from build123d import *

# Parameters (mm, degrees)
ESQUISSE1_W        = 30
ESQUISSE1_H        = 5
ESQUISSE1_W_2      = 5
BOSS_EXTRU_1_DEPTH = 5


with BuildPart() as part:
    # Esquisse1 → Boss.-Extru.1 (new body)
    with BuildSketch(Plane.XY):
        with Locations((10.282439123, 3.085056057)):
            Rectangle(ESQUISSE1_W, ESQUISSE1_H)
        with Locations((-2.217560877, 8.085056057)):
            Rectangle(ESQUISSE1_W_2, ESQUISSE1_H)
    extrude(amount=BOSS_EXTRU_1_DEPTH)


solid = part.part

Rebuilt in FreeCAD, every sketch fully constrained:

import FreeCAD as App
import Part
import Sketcher
from FreeCAD import Vector
Q = App.Units.Quantity

doc = App.newDocument("Part")
params = doc.addObject("Spreadsheet::Sheet", "Params")
for row, (alias, value) in enumerate([
    ("sketch1_width", "30 mm"),
    ("sketch1_width2", "25 mm"),
    ("pad1_length", "5 mm"),
], start=1):
    params.set(f"A{row}", alias)
    params.set(f"B{row}", "=" + value)
    params.setAlias(f"B{row}", alias)

body = doc.addObject("PartDesign::Body", "Body")

sketch1 = body.newObject("Sketcher::SketchObject", "Sketch")
sketch1.AttachmentSupport = (doc.getObject("XY_Plane"), [""])
sketch1.MapMode = "FlatFace"
sketch1.addGeometry([
    Part.LineSegment(Vector(-4.717561, 0.585056, 0), Vector(25.282439, 0.585056, 0)),
    Part.LineSegment(Vector(25.282439, 0.585056, 0), Vector(25.282439, 5.585056, 0)),
    Part.LineSegment(Vector(25.282439, 5.585056, 0), Vector(0.282439, 5.585056, 0)),
    Part.LineSegment(Vector(0.282439, 5.585056, 0), Vector(0.282439, 10.585056, 0)),
    Part.LineSegment(Vector(0.282439, 10.585056, 0), Vector(-4.717561, 10.585056, 0)),
    Part.LineSegment(Vector(-4.717561, 10.585056, 0), Vector(-4.717561, 0.585056, 0)),
], False)
sketch1.addConstraint([
    Sketcher.Constraint("Coincident", 0, 2, 1, 1),
    Sketcher.Constraint("Coincident", 1, 2, 2, 1),
    Sketcher.Constraint("Coincident", 2, 2, 3, 1),
    Sketcher.Constraint("Coincident", 3, 2, 4, 1),
    Sketcher.Constraint("Coincident", 4, 2, 5, 1),
    Sketcher.Constraint("Coincident", 5, 2, 0, 1),
    Sketcher.Constraint("Horizontal", 0),
    Sketcher.Constraint("Vertical", 1),
    Sketcher.Constraint("Horizontal", 2),
    Sketcher.Constraint("Vertical", 3),
    Sketcher.Constraint("Horizontal", 4),
    Sketcher.Constraint("Vertical", 5),
    Sketcher.Constraint("Equal", 4, 1),
    Sketcher.Constraint("Equal", 1, 3),
    Sketcher.Constraint("DistanceX", 0, 1, 0, 2, Q("30 mm")),
    Sketcher.Constraint("DistanceX", 2, 2, 2, 1, Q("25 mm")),
    Sketcher.Constraint("DistanceX", -1, 1, 0, 2, Q("25.282439 mm")),
    Sketcher.Constraint("DistanceY", -1, 1, 0, 2, Q("0.585056 mm")),
])
sketch1.setExpression("Constraints[14]", "Params.sketch1_width")
sketch1.setExpression("Constraints[15]", "Params.sketch1_width2")
pad1 = body.newObject("PartDesign::Pad", "Pad")
pad1.Profile = sketch1
pad1.setExpression("Length", "Params.pad1_length")

doc.recompute()
